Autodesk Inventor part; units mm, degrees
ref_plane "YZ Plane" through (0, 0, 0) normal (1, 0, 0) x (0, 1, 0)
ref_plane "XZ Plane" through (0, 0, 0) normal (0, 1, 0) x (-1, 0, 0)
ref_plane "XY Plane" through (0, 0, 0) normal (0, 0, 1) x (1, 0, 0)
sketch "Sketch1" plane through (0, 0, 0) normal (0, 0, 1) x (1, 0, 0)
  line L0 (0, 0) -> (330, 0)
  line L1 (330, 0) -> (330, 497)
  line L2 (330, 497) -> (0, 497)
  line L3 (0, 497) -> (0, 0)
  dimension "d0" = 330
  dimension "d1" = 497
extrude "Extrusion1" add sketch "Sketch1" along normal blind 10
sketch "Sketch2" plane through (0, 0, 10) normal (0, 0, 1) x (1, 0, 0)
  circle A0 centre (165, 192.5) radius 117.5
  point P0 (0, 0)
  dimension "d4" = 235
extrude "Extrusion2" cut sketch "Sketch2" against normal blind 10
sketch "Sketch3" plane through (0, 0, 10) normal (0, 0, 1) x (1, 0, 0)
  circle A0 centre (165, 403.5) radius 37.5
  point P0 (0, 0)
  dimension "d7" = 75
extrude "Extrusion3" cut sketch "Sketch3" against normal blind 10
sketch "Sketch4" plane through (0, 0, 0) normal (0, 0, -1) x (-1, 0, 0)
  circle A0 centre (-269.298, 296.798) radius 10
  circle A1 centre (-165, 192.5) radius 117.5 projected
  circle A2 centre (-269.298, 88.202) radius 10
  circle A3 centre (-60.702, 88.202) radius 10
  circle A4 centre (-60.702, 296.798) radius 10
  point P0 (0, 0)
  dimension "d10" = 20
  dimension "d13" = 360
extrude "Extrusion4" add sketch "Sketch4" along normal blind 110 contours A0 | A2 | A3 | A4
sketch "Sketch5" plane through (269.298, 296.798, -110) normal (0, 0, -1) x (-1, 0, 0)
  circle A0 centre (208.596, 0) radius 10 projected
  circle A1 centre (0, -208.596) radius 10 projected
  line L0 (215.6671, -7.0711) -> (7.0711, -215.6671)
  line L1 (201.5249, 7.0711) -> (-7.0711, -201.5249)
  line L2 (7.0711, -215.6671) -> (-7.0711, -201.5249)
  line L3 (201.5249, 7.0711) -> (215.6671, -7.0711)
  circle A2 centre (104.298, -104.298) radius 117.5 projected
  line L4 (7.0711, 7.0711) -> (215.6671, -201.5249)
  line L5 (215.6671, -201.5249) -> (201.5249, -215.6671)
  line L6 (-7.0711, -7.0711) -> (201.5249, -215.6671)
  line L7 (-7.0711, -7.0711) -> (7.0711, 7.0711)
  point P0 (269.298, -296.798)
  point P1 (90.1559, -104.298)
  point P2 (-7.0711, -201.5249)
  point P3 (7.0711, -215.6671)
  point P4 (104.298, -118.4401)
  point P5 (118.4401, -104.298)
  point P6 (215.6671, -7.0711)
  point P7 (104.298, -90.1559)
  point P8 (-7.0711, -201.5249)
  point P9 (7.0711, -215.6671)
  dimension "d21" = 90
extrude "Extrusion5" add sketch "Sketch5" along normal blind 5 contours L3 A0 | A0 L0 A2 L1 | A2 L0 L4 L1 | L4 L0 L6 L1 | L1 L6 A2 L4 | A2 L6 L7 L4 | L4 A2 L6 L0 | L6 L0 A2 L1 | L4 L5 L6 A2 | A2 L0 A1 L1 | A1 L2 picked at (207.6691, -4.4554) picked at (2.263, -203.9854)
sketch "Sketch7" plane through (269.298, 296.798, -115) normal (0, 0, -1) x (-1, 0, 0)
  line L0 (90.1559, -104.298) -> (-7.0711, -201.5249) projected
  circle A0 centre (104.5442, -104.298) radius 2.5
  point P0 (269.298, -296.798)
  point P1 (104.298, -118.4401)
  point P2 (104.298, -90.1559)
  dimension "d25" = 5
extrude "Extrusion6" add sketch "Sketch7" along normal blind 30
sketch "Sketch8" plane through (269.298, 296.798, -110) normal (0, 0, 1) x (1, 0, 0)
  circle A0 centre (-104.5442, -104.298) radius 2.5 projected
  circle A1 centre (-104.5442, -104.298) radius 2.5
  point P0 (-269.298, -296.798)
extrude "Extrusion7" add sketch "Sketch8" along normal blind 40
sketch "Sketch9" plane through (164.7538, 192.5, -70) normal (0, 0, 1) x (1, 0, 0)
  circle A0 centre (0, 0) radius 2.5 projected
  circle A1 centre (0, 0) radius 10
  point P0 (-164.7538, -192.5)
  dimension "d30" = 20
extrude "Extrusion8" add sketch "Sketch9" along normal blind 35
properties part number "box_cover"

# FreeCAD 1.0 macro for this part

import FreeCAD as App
import Part
import Sketcher


def add_polygon(sketch, points):
    """Adds a closed chain of lines whose ends are joined by coincident constraints."""
    first, n = sketch.GeometryCount, len(points)
    for a, b in zip(points, points[1:] + points[:1]):
        sketch.addGeometry(Part.LineSegment(App.Vector(*a, 0), App.Vector(*b, 0)), False)
    for i in range(n):
        sketch.addConstraint(Sketcher.Constraint("Coincident", first + i, 2, first + (i + 1) % n, 1))

doc = App.newDocument("Part")
params = doc.addObject("Spreadsheet::Sheet", "Params")
for row, (alias, value) in enumerate([
    ("sketch1_width", "330 mm"),
    ("sketch1_height", "497 mm"),
    ("pad1_length", "10 mm"),
    ("sketch2_diameter", "235 mm"),
    ("pocket1_length", "10 mm"),
    ("sketch3_diameter", "75 mm"),
    ("pocket2_length", "10 mm"),
    ("sketch4_diameter", "20 mm"),
    ("pad2_length", "110 mm"),
    ("sketch5_length", "20 mm"),
    ("pad3_length", "5 mm"),
    ("sketch6_diameter", "5 mm"),
    ("pad4_length", "30 mm"),
    ("sketch7_diameter", "5 mm"),
    ("pad5_length", "40 mm"),
    ("sketch8_diameter", "20 mm"),
    ("sketch8_diameter2", "5 mm"),
    ("pad6_length", "35 mm"),
], start=1):
    params.set(f"A{row}", alias)
    params.set(f"B{row}", "=" + value)
    params.setAlias(f"B{row}", alias)

body = doc.addObject("PartDesign::Body", "Body")
body.AllowCompound = True

sketch1 = body.newObject("Sketcher::SketchObject", "Sketch")
sketch1.AttachmentSupport = (doc.getObject("XY_Plane"), [""])
sketch1.MapMode = "FlatFace"
add_polygon(sketch1, [(0, 497), (0, 0), (330, 0), (330, 497)])
sketch1.addConstraint([
    Sketcher.Constraint("Vertical", 0),
    Sketcher.Constraint("Horizontal", 1),
    Sketcher.Constraint("Vertical", 2),
    Sketcher.Constraint("Horizontal", 3),
    Sketcher.Constraint("Coincident", 0, 2, -1, 1),
    Sketcher.Constraint("DistanceX", 1, 1, 1, 2, 330.0),
    Sketcher.Constraint("DistanceY", 0, 2, 0, 1, 497.0),
])
sketch1.setExpression("Constraints[9]", "Params.sketch1_width")
sketch1.setExpression("Constraints[10]", "Params.sketch1_height")
pad1 = body.newObject("PartDesign::Pad", "Pad")
pad1.Profile = sketch1
pad1.setExpression("Length", "Params.pad1_length")

sketch2 = body.newObject("Sketcher::SketchObject", "Sketch001")
sketch2.AttachmentSupport = (doc.getObject("XY_Plane"), [""])
sketch2.MapMode = "FlatFace"
sketch2.AttachmentOffset = App.Placement(App.Vector(0, 0, 10), App.Rotation())
sketch2.addGeometry(Part.Circle(App.Vector(165, 192.5, 0), App.Vector(0, 0, 1), 117.5), False)
sketch2.addConstraint([
    Sketcher.Constraint("Diameter", 0, 235.0),
    Sketcher.Constraint("DistanceX", -1, 1, 0, 3, 165.0),
    Sketcher.Constraint("DistanceY", -1, 1, 0, 3, 192.5),
])
sketch2.setExpression("Constraints[0]", "Params.sketch2_diameter")
pocket1 = body.newObject("PartDesign::Pocket", "Pocket")
pocket1.Profile = sketch2
pocket1.setExpression("Length", "Params.pocket1_length")

sketch3 = body.newObject("Sketcher::SketchObject", "Sketch002")
sketch3.AttachmentSupport = (doc.getObject("XY_Plane"), [""])
sketch3.MapMode = "FlatFace"
sketch3.AttachmentOffset = App.Placement(App.Vector(0, 0, 10), App.Rotation())
sketch3.addGeometry(Part.Circle(App.Vector(165, 403.5, 0), App.Vector(0, 0, 1), 37.5), False)
sketch3.addConstraint([
    Sketcher.Constraint("Diameter", 0, 75.0),
    Sketcher.Constraint("DistanceX", -1, 1, 0, 3, 165.0),
    Sketcher.Constraint("DistanceY", -1, 1, 0, 3, 403.5),
])
sketch3.setExpression("Constraints[0]", "Params.sketch3_diameter")
pocket2 = body.newObject("PartDesign::Pocket", "Pocket001")
pocket2.Profile = sketch3
pocket2.setExpression("Length", "Params.pocket2_length")

sketch4 = body.newObject("Sketcher::SketchObject", "Sketch003")
sketch4.AttachmentSupport = (doc.getObject("XY_Plane"), [""])
sketch4.MapMode = "FlatFace"
sketch4.addGeometry([
    Part.Circle(App.Vector(269.298, 296.798, 0), App.Vector(0, 0, 1), 10),
    Part.Circle(App.Vector(269.298, 88.202, 0), App.Vector(0, 0, 1), 10),
    Part.Circle(App.Vector(60.702, 88.202, 0), App.Vector(0, 0, 1), 10),
    Part.Circle(App.Vector(60.702, 296.798, 0), App.Vector(0, 0, 1), 10),
], False)
sketch4.addConstraint([
    Sketcher.Constraint("Equal", 0, 1),
    Sketcher.Constraint("Equal", 1, 2),
    Sketcher.Constraint("Equal", 2, 3),
    Sketcher.Constraint("Horizontal", 1, 3, 2, 3),
    Sketcher.Constraint("Horizontal", 0, 3, 3, 3),
    Sketcher.Constraint("Vertical", 0, 3, 1, 3),
    Sketcher.Constraint("Vertical", 2, 3, 3, 3),
    Sketcher.Constraint("Diameter", 0, 20.0),
    Sketcher.Constraint("DistanceX", -1, 1, 0, 3, 269.298),
    Sketcher.Constraint("DistanceY", -1, 1, 0, 3, 296.798),
    Sketcher.Constraint("DistanceY", -1, 1, 1, 3, 88.202),
    Sketcher.Constraint("DistanceX", -1, 1, 2, 3, 60.702),
])
sketch4.setExpression("Constraints[7]", "Params.sketch4_diameter")
pad2 = body.newObject("PartDesign::Pad", "Pad001")
pad2.Profile = sketch4
pad2.setExpression("Length", "Params.pad2_length")
pad2.Reversed = True

sketch5 = body.newObject("Sketcher::SketchObject", "Sketch004")
sketch5.AttachmentSupport = (doc.getObject("XY_Plane"), [""])
sketch5.MapMode = "FlatFace"
sketch5.AttachmentOffset = App.Placement(App.Vector(0, 0, -110), App.Rotation())
add_polygon(sketch5, [(53.6309, 289.7269), (67.7731, 303.8691), (165, 206.6422), (262.2269, 303.8691), (276.3691, 289.7269), (179.1422, 192.5), (276.3691, 95.2731), (262.2269, 81.1309), (165, 178.3578), (67.7731, 81.1309), (53.6309, 95.2731), (150.8578, 192.5)])
sketch5.addConstraint([
    Sketcher.Constraint("Perpendicular", 0, 1),
    Sketcher.Constraint("Perpendicular", 1, 2),
    Sketcher.Constraint("Perpendicular", 2, 3),
    Sketcher.Constraint("Perpendicular", 3, 4),
    Sketcher.Constraint("Perpendicular", 4, 5),
    Sketcher.Constraint("Perpendicular", 5, 6),
    Sketcher.Constraint("Perpendicular", 6, 7),
    Sketcher.Constraint("Perpendicular", 7, 8),
    Sketcher.Constraint("Perpendicular", 8, 9),
    Sketcher.Constraint("Perpendicular", 9, 10),
    Sketcher.Constraint("Perpendicular", 10, 11),
    Sketcher.Constraint("Horizontal", 0, 2, 2, 2),
    Sketcher.Constraint("Horizontal", 6, 2, 8, 2),
    Sketcher.Constraint("Horizontal", 5, 2, 9, 2),
    Sketcher.Constraint("Horizontal", 4, 2, 10, 2),
    Sketcher.Constraint("Horizontal", 3, 2, 11, 2),
    Sketcher.Constraint("Vertical", 3, 2, 5, 2),
    Sketcher.Constraint("Vertical", 2, 2, 6, 2),
    Sketcher.Constraint("Vertical", 1, 2, 7, 2),
    Sketcher.Constraint("Equal", 2, 4),
    Sketcher.Constraint("Distance", 0, 20.0),
    Sketcher.Constraint("DistanceX", -1, 1, 1, 2, 165.0),
    Sketcher.Constraint("DistanceY", -1, 1, 4, 2, 192.5),
    Sketcher.Constraint("DistanceX", -1, 1, 0, 2, 67.773),
])
sketch5.setExpression("Constraints[32]", "Params.sketch5_length")
pad3 = body.newObject("PartDesign::Pad", "Pad002")
pad3.Profile = sketch5
pad3.setExpression("Length", "Params.pad3_length")
pad3.Reversed = True

sketch6 = body.newObject("Sketcher::SketchObject", "Sketch005")
sketch6.AttachmentSupport = (doc.getObject("XY_Plane"), [""])
sketch6.MapMode = "FlatFace"
sketch6.AttachmentOffset = App.Placement(App.Vector(0, 0, -115), App.Rotation())
sketch6.addGeometry(Part.Circle(App.Vector(164.7538, 192.5, 0), App.Vector(0, 0, 1), 2.5), False)
sketch6.addConstraint([
    Sketcher.Constraint("Diameter", 0, 5.0),
    Sketcher.Constraint("DistanceY", -1, 1, 0, 3, 192.5),
    Sketcher.Constraint("DistanceX", -1, 1, 0, 3, 164.7538),
])
sketch6.setExpression("Constraints[0]", "Params.sketch6_diameter")
pad4 = body.newObject("PartDesign::Pad", "Pad003")
pad4.Profile = sketch6
pad4.setExpression("Length", "Params.pad4_length")
pad4.Reversed = True

sketch7 = body.newObject("Sketcher::SketchObject", "Sketch006")
sketch7.AttachmentSupport = (doc.getObject("XY_Plane"), [""])
sketch7.MapMode = "FlatFace"
sketch7.AttachmentOffset = App.Placement(App.Vector(0, 0, -110), App.Rotation())
sketch7.addGeometry(Part.Circle(App.Vector(164.7538, 192.5, 0), App.Vector(0, 0, 1), 2.5), False)
sketch7.addConstraint([
    Sketcher.Constraint("Diameter", 0, 5.0),
    Sketcher.Constraint("DistanceY", -1, 1, 0, 3, 192.5),
    Sketcher.Constraint("DistanceX", -1, 1, 0, 3, 164.7538),
])
sketch7.setExpression("Constraints[0]", "Params.sketch7_diameter")
pad5 = body.newObject("PartDesign::Pad", "Pad004")
pad5.Profile = sketch7
pad5.setExpression("Length", "Params.pad5_length")

sketch8 = body.newObject("Sketcher::SketchObject", "Sketch007")
sketch8.AttachmentSupport = (doc.getObject("XY_Plane"), [""])
sketch8.MapMode = "FlatFace"
sketch8.AttachmentOffset = App.Placement(App.Vector(0, 0, -70), App.Rotation())
sketch8.addGeometry([
    Part.Circle(App.Vector(164.7538, 192.5, 0), App.Vector(0, 0, 1), 10),
    Part.Circle(App.Vector(164.7538, 192.5, 0), App.Vector(0, 0, 1), 2.5),
], False)
sketch8.addConstraint([
    Sketcher.Constraint("Coincident", 1, 3, 0, 3),
    Sketcher.Constraint("Diameter", 0, 20.0),
    Sketcher.Constraint("Diameter", 1, 5.0),
    Sketcher.Constraint("DistanceY", -1, 1, 0, 3, 192.5),
    Sketcher.Constraint("DistanceX", -1, 1, 0, 3, 164.7538),
])
sketch8.setExpression("Constraints[1]", "Params.sketch8_diameter")
sketch8.setExpression("Constraints[2]", "Params.sketch8_diameter2")
pad6 = body.newObject("PartDesign::Pad", "Pad005")
pad6.Profile = sketch8
pad6.setExpression("Length", "Params.pad6_length")

doc.recompute()
